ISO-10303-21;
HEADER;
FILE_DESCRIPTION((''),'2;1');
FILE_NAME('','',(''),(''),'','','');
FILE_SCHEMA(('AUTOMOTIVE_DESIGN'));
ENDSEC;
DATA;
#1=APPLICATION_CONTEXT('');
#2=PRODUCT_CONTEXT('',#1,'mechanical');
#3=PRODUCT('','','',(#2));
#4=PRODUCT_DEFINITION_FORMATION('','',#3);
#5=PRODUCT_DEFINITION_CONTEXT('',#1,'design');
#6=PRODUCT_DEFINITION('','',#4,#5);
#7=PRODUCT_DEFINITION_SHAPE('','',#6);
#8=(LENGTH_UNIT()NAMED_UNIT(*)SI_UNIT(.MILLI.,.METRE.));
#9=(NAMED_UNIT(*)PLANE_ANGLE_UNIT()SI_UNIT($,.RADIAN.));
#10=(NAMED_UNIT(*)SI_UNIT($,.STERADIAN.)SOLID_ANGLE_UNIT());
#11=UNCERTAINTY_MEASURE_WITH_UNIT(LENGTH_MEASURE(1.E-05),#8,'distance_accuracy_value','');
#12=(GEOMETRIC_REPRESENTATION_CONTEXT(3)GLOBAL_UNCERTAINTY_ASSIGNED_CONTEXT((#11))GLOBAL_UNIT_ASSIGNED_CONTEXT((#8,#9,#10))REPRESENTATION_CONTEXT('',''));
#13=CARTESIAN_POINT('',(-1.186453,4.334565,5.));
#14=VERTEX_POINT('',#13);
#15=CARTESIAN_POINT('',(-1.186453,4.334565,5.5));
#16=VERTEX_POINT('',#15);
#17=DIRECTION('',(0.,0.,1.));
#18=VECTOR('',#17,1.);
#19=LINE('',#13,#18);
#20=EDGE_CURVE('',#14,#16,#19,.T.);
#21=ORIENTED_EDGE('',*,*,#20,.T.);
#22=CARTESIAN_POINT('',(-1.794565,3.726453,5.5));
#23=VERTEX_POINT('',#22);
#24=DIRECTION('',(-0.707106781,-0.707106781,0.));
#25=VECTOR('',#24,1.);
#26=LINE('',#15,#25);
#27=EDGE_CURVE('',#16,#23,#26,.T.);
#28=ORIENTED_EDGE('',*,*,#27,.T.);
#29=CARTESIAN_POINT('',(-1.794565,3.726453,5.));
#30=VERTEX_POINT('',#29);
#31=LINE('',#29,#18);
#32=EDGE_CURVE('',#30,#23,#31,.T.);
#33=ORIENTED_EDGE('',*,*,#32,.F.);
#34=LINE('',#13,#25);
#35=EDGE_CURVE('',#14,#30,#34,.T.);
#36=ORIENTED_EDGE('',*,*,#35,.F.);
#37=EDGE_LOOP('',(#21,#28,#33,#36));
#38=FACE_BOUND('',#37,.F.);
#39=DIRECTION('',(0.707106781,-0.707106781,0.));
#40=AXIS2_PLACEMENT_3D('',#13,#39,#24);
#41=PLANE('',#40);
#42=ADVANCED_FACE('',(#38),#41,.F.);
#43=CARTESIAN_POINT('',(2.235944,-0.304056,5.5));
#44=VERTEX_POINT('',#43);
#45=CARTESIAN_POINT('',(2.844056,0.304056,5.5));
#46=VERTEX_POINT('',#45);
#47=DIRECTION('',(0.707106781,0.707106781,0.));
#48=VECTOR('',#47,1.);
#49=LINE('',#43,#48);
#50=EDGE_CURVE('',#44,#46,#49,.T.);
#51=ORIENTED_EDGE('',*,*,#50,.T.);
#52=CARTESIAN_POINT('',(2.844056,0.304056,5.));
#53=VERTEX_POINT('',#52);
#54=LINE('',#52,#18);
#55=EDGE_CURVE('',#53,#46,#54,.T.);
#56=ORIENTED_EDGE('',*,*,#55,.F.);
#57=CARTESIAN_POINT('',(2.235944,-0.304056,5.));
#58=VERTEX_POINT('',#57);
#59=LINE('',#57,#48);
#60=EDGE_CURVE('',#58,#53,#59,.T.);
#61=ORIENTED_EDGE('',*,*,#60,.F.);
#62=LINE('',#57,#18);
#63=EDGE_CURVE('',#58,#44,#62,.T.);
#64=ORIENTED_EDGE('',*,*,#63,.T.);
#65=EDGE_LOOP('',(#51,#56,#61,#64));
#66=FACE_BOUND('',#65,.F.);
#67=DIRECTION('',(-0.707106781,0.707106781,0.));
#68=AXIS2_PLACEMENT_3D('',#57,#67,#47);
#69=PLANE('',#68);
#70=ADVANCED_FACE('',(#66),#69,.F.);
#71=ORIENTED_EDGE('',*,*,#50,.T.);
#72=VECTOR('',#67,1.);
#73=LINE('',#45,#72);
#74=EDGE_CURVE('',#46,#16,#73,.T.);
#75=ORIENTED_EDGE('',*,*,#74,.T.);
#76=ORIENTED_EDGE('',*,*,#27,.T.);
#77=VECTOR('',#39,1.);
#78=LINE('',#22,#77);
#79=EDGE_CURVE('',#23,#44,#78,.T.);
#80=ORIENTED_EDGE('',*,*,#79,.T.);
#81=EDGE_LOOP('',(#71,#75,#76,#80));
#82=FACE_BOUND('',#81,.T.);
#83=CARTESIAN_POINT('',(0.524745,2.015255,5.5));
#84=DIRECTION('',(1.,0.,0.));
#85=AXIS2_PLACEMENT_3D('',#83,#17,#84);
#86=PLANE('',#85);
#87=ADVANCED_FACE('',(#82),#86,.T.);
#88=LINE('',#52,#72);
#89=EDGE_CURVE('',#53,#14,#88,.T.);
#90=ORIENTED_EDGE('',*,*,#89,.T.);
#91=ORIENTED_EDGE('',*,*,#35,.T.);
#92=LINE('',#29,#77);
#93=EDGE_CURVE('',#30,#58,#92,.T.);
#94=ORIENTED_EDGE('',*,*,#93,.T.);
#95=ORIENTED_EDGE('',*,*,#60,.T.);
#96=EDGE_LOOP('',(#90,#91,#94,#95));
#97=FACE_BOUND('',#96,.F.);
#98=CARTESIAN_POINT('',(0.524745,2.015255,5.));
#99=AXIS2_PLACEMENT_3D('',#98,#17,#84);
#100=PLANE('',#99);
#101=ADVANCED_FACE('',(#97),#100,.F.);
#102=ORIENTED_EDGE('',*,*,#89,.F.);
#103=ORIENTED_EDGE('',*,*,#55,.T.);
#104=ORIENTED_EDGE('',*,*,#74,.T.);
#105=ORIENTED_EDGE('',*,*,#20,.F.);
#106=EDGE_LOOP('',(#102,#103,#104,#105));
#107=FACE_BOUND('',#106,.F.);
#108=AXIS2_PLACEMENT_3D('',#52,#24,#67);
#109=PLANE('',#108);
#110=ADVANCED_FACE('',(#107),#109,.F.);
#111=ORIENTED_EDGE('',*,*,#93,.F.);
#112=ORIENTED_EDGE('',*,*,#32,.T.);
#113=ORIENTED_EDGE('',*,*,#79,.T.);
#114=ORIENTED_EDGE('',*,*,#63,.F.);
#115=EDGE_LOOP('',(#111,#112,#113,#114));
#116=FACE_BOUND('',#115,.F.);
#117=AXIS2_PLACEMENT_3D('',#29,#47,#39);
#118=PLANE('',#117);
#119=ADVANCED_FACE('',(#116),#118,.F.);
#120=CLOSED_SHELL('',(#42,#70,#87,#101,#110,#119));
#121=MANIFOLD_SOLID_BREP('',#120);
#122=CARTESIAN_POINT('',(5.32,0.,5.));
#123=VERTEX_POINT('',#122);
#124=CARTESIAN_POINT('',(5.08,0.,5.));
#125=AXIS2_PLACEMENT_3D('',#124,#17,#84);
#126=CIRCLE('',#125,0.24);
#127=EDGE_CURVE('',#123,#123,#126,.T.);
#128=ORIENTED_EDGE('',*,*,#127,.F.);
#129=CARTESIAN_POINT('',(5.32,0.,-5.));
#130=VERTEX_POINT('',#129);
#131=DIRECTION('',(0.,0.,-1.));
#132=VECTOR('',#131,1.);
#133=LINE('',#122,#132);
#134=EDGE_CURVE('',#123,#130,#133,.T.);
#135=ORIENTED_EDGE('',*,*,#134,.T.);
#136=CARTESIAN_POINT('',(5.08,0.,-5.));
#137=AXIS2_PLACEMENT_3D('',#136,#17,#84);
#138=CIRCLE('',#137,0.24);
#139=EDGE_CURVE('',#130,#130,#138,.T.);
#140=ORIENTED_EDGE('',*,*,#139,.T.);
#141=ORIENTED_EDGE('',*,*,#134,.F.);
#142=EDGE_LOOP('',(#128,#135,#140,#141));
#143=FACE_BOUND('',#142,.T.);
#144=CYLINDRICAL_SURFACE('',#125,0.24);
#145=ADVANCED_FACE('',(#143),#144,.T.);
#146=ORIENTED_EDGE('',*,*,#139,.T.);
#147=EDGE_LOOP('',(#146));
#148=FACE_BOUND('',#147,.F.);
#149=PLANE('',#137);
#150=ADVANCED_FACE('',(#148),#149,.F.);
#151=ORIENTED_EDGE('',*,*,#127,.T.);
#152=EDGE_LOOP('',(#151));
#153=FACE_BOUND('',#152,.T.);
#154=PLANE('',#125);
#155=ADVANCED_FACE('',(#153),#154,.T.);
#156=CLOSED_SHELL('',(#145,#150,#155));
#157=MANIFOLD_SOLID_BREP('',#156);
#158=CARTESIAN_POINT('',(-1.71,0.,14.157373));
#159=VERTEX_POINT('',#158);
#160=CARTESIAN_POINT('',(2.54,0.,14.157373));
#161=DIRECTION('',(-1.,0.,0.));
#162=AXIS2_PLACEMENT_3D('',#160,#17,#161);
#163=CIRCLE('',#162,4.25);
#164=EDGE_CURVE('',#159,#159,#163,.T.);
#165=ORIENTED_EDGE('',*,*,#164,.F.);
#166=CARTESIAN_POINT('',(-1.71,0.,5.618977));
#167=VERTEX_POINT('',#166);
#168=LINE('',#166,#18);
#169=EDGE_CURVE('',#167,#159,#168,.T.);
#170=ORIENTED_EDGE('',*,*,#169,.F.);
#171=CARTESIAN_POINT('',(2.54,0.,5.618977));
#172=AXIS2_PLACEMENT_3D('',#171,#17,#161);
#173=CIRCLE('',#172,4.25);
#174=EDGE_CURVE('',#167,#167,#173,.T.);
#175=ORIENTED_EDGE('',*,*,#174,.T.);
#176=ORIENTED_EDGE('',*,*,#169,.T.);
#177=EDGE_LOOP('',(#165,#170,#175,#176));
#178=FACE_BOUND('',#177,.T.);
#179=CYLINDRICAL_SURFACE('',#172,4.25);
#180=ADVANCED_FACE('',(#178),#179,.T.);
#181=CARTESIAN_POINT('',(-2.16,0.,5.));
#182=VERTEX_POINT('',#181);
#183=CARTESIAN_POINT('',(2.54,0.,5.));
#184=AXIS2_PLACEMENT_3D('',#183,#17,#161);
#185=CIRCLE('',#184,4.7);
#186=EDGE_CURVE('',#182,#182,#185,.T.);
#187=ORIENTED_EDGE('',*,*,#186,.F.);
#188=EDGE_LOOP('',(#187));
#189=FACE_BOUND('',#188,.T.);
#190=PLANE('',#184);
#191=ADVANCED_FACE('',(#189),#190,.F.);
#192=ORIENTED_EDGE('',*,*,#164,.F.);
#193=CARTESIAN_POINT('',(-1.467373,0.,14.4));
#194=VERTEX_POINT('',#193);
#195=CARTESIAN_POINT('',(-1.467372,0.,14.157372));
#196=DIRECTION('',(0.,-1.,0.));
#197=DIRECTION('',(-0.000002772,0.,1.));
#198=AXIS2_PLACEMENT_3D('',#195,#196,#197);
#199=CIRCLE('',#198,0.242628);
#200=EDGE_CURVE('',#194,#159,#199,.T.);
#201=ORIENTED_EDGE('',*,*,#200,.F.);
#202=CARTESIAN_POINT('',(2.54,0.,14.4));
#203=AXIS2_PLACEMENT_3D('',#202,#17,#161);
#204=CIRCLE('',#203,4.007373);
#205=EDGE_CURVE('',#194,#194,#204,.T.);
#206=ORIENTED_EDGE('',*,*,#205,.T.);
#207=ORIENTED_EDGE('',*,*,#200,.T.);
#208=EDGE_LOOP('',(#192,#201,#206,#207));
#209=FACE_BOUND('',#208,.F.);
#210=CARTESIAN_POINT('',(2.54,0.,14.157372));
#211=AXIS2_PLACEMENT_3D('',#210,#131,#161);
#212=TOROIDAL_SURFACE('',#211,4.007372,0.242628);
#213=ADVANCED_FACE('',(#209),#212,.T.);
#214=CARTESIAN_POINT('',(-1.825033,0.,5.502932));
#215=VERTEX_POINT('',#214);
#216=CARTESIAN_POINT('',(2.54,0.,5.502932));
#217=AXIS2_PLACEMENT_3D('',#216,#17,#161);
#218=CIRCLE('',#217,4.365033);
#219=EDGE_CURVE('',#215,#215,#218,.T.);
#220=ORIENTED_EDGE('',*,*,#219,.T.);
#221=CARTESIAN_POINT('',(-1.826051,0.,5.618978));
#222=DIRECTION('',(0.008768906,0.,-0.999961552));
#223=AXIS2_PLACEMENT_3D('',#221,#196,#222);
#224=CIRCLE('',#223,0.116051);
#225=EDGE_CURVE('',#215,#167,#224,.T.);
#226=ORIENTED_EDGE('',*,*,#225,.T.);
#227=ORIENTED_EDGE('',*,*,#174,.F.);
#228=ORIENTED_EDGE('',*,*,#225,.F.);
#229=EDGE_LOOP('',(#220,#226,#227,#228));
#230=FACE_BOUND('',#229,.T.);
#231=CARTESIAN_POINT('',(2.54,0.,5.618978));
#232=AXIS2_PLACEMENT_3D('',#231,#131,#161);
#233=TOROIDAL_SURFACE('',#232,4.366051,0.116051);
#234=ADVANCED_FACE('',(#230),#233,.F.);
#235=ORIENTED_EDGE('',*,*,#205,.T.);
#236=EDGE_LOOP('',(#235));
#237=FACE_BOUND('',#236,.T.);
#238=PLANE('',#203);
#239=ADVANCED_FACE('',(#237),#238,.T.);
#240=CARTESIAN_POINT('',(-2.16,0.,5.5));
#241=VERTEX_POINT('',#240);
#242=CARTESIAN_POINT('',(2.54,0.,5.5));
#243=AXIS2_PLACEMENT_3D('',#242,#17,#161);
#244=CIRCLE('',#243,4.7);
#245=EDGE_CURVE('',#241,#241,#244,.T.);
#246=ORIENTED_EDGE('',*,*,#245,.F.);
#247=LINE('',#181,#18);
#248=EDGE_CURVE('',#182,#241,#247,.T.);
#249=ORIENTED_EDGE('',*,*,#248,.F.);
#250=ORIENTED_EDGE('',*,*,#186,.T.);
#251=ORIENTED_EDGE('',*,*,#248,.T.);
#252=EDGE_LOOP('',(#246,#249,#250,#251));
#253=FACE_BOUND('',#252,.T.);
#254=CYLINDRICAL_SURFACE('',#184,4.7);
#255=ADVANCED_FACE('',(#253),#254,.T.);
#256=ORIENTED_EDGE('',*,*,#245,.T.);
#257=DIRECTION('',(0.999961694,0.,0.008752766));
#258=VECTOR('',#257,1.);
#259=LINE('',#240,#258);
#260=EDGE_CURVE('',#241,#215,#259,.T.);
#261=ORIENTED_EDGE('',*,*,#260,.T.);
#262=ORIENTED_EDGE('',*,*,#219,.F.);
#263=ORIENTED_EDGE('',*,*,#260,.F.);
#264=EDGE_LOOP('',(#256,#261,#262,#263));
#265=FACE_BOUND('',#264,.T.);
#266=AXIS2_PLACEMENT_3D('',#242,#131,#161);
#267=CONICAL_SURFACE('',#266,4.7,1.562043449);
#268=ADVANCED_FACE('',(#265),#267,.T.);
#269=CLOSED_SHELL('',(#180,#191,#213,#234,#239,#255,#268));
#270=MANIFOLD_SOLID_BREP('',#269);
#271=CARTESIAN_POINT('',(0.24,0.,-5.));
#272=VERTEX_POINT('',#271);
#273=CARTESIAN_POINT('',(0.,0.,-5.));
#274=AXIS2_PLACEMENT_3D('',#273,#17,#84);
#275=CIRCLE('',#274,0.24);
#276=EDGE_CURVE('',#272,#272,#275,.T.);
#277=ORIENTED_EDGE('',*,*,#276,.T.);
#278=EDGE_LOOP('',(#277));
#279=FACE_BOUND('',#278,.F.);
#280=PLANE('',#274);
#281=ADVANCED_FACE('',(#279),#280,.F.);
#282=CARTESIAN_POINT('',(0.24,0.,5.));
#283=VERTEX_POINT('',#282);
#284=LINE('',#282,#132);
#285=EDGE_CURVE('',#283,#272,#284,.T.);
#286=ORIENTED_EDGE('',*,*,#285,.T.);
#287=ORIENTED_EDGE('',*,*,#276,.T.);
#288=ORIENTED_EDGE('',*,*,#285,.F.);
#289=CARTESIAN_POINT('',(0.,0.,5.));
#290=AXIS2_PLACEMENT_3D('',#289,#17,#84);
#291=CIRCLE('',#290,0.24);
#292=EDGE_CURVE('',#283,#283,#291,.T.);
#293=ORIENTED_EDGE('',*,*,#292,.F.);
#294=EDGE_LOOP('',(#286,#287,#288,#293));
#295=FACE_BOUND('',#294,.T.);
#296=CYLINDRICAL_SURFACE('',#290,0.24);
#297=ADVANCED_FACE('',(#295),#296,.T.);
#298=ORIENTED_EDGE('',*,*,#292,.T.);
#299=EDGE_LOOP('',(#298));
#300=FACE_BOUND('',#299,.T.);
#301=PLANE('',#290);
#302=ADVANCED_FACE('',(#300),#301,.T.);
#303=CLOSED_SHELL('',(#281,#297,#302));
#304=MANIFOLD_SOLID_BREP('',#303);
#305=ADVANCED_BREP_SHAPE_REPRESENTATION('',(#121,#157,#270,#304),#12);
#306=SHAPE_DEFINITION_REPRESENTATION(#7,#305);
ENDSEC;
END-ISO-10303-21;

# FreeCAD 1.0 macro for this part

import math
import FreeCAD as App
import Part
import Sketcher
from FreeCAD import Vector
Q = App.Units.Quantity

doc = App.newDocument("Part")
params = doc.addObject("Spreadsheet::Sheet", "Params")
for row, (alias, value) in enumerate([
    ("sketch1_diameter", "0.48 mm"),
    ("pad1_length", "10 mm"),
    ("sketch2_width", "4.7 mm"),
    ("sketch2_height", "9.4 mm"),
    ("sketch2_height2", "0.5 mm"),
    ("revolution_angle", "360 deg"),
    ("sketch3_length", "5.7 mm"),
    ("sketch3_length2", "0.86 mm"),
    ("pad2_length", "0.5 mm"),
], start=1):
    params.set(f"A{row}", alias)
    params.set(f"B{row}", "=" + value)
    params.setAlias(f"B{row}", alias)

body = doc.addObject("PartDesign::Body", "Body")
body.AllowCompound = True

sketch1 = body.newObject("Sketcher::SketchObject", "Sketch")
sketch1.AttachmentSupport = (doc.getObject("XY_Plane"), [""])
sketch1.MapMode = "FlatFace"
sketch1.AttachmentOffset = App.Placement(Vector(0, 0, 5), App.Rotation())
sketch1.addGeometry(Part.Circle(Vector(0, 0, 0), Vector(0, 0, 1), 0.24), False)
sketch1.addGeometry(Part.Circle(Vector(5.08, 0, 0), Vector(0, 0, 1), 0.24), False)
sketch1.addConstraint(Sketcher.Constraint("Coincident", 0, 3, -1, 1))
sketch1.addConstraint(Sketcher.Constraint("Equal", 0, 1))
sketch1.addConstraint(Sketcher.Constraint("PointOnObject", 1, 3, -1))
sketch1.addConstraint(Sketcher.Constraint("Diameter", 0, 0.48))
sketch1.addConstraint(Sketcher.Constraint("DistanceX", -1, 1, 1, 3, 5.08))
sketch1.setExpression("Constraints[3]", "Params.sketch1_diameter")
pad1 = body.newObject("PartDesign::Pad", "Pad")
pad1.Profile = sketch1
pad1.setExpression("Length", "Params.pad1_length")
pad1.Reversed = True
body2 = doc.addObject("PartDesign::Body", "Body001")

sketch2 = body2.newObject("Sketcher::SketchObject", "Sketch001")
sketch2.AttachmentSupport = (doc.getObject("XZ_Plane001"), [""])
sketch2.MapMode = "FlatFace"
sketch2.addGeometry(Part.LineSegment(Vector(-2.16, 5, 0), Vector(2.54, 5, 0)), False)
sketch2.addGeometry(Part.LineSegment(Vector(2.54, 5, 0), Vector(2.54, 14.4, 0)), False)
sketch2.addGeometry(Part.LineSegment(Vector(2.54, 14.4, 0), Vector(-1.47, 14.4, 0)), False)
sketch2.addGeometry(Part.ArcOfCircle(Part.Circle(Vector(-1.47, 14.16, 0), Vector(0, 0, 1), 0.24), math.radians(90), math.radians(180)), False)
sketch2.addGeometry(Part.LineSegment(Vector(-1.71, 14.16, 0), Vector(-1.71, 5.62, 0)), False)
sketch2.addGeometry(Part.ArcOfCircle(Part.Circle(Vector(-1.83, 5.62, 0), Vector(0, 0, 1), 0.12), math.radians(-89), math.radians(0)), False)
sketch2.addGeometry(Part.LineSegment(Vector(-1.83, 5.5, 0), Vector(-2.16, 5.5, 0)), False)
sketch2.addGeometry(Part.LineSegment(Vector(-2.16, 5.5, 0), Vector(-2.16, 5, 0)), False)
sketch2.addGeometry(Part.LineSegment(Vector(2.54, 5, 0), Vector(2.54, 14.4, 0)), True)
sketch2.addConstraint(Sketcher.Constraint("Coincident", 0, 2, 1, 1))
sketch2.addConstraint(Sketcher.Constraint("Coincident", 1, 2, 2, 1))
sketch2.addConstraint(Sketcher.Constraint("Coincident", 2, 2, 3, 1))
sketch2.addConstraint(Sketcher.Constraint("Coincident", 3, 2, 4, 1))
sketch2.addConstraint(Sketcher.Constraint("Coincident", 4, 2, 5, 2))
sketch2.addConstraint(Sketcher.Constraint("Coincident", 5, 1, 6, 1))
sketch2.addConstraint(Sketcher.Constraint("Coincident", 6, 2, 7, 1))
sketch2.addConstraint(Sketcher.Constraint("Coincident", 7, 2, 0, 1))
sketch2.addConstraint(Sketcher.Constraint("Horizontal", 0))
sketch2.addConstraint(Sketcher.Constraint("Vertical", 1))
sketch2.addConstraint(Sketcher.Constraint("Horizontal", 2))
sketch2.addConstraint(Sketcher.Constraint("Vertical", 4))
sketch2.addConstraint(Sketcher.Constraint("Vertical", 7))
sketch2.addConstraint(Sketcher.Constraint("Vertical", 8))
sketch2.addConstraint(Sketcher.Constraint("Coincident", 8, 1, 0, 2))
sketch2.addConstraint(Sketcher.Constraint("Horizontal", 5, 3, 4, 2))
sketch2.addConstraint(Sketcher.Constraint("Horizontal", 2, 2, 8, 2))
sketch2.addConstraint(Sketcher.Constraint("Vertical", 3, 3, 2, 2))
sketch2.addConstraint(Sketcher.Constraint("DistanceX", 0, 1, 0, 2, 4.7))
sketch2.addConstraint(Sketcher.Constraint("DistanceY", 1, 1, 1, 2, 9.4))
sketch2.addConstraint(Sketcher.Constraint("DistanceY", 7, 2, 7, 1, 0.5))
sketch2.addConstraint(Sketcher.Constraint("DistanceY", -1, 1, 0, 2, 5.0))
sketch2.addConstraint(Sketcher.Constraint("DistanceX", -1, 1, 0, 2, 2.54))
sketch2.addConstraint(Sketcher.Constraint("DistanceX", 3, 2, -1, 1, 1.71))
sketch2.addConstraint(Sketcher.Constraint("Radius", 5, 0.116051))
sketch2.addConstraint(Sketcher.Constraint("Radius", 3, 0.242628))
sketch2.addConstraint(Sketcher.Constraint("Distance", 6, 0.33498))
sketch2.addConstraint(Sketcher.Constraint("DistanceY", 4, 2, 4, 1, 8.538396))
sketch2.addConstraint(Sketcher.Constraint("DistanceY", -1, 1, 5, 3, 5.618978))
sketch2.setExpression("Constraints[18]", "Params.sketch2_width")
sketch2.setExpression("Constraints[19]", "Params.sketch2_height")
sketch2.setExpression("Constraints[20]", "Params.sketch2_height2")
revolution = body2.newObject("PartDesign::Revolution", "Revolution")
revolution.Profile = sketch2
revolution.ReferenceAxis = (sketch2, ["Axis0"])
revolution.setExpression("Angle", "Params.revolution_angle")
body3 = doc.addObject("PartDesign::Body", "Body002")

sketch3 = body3.newObject("Sketcher::SketchObject", "Sketch002")
sketch3.AttachmentSupport = (doc.getObject("XY_Plane002"), [""])
sketch3.MapMode = "FlatFace"
sketch3.AttachmentOffset = App.Placement(Vector(0, 0, 5), App.Rotation())
sketch3.addGeometry(Part.LineSegment(Vector(2.8, 0.3, 0), Vector(-1.2, 4.3, 0)), False)
sketch3.addGeometry(Part.LineSegment(Vector(-1.2, 4.3, 0), Vector(-1.8, 3.7, 0)), False)
sketch3.addGeometry(Part.LineSegment(Vector(-1.8, 3.7, 0), Vector(2.2, -0.3, 0)), False)
sketch3.addGeometry(Part.LineSegment(Vector(2.2, -0.3, 0), Vector(2.8, 0.3, 0)), False)
sketch3.addConstraint(Sketcher.Constraint("Coincident", 0, 2, 1, 1))
sketch3.addConstraint(Sketcher.Constraint("Coincident", 1, 2, 2, 1))
sketch3.addConstraint(Sketcher.Constraint("Coincident", 2, 2, 3, 1))
sketch3.addConstraint(Sketcher.Constraint("Coincident", 3, 2, 0, 1))
sketch3.addConstraint(Sketcher.Constraint("Perpendicular", 0, 1))
sketch3.addConstraint(Sketcher.Constraint("Perpendicular", 1, 2))
sketch3.addConstraint(Sketcher.Constraint("Perpendicular", 2, 3))
sketch3.addConstraint(Sketcher.Constraint("Angle", 0, Q("135 deg")))
sketch3.addConstraint(Sketcher.Constraint("Distance", 0, 5.7))
sketch3.addConstraint(Sketcher.Constraint("Distance", 1, 0.86))
sketch3.addConstraint(Sketcher.Constraint("DistanceX", 0, 2, -1, 1, 1.186453))
sketch3.addConstraint(Sketcher.Constraint("DistanceY", -1, 1, 0, 2, 4.334565))
sketch3.setExpression("Constraints[8]", "Params.sketch3_length")
sketch3.setExpression("Constraints[9]", "Params.sketch3_length2")
pad2 = body3.newObject("PartDesign::Pad", "Pad001")
pad2.Profile = sketch3
pad2.setExpression("Length", "Params.pad2_length")

doc.recompute()
